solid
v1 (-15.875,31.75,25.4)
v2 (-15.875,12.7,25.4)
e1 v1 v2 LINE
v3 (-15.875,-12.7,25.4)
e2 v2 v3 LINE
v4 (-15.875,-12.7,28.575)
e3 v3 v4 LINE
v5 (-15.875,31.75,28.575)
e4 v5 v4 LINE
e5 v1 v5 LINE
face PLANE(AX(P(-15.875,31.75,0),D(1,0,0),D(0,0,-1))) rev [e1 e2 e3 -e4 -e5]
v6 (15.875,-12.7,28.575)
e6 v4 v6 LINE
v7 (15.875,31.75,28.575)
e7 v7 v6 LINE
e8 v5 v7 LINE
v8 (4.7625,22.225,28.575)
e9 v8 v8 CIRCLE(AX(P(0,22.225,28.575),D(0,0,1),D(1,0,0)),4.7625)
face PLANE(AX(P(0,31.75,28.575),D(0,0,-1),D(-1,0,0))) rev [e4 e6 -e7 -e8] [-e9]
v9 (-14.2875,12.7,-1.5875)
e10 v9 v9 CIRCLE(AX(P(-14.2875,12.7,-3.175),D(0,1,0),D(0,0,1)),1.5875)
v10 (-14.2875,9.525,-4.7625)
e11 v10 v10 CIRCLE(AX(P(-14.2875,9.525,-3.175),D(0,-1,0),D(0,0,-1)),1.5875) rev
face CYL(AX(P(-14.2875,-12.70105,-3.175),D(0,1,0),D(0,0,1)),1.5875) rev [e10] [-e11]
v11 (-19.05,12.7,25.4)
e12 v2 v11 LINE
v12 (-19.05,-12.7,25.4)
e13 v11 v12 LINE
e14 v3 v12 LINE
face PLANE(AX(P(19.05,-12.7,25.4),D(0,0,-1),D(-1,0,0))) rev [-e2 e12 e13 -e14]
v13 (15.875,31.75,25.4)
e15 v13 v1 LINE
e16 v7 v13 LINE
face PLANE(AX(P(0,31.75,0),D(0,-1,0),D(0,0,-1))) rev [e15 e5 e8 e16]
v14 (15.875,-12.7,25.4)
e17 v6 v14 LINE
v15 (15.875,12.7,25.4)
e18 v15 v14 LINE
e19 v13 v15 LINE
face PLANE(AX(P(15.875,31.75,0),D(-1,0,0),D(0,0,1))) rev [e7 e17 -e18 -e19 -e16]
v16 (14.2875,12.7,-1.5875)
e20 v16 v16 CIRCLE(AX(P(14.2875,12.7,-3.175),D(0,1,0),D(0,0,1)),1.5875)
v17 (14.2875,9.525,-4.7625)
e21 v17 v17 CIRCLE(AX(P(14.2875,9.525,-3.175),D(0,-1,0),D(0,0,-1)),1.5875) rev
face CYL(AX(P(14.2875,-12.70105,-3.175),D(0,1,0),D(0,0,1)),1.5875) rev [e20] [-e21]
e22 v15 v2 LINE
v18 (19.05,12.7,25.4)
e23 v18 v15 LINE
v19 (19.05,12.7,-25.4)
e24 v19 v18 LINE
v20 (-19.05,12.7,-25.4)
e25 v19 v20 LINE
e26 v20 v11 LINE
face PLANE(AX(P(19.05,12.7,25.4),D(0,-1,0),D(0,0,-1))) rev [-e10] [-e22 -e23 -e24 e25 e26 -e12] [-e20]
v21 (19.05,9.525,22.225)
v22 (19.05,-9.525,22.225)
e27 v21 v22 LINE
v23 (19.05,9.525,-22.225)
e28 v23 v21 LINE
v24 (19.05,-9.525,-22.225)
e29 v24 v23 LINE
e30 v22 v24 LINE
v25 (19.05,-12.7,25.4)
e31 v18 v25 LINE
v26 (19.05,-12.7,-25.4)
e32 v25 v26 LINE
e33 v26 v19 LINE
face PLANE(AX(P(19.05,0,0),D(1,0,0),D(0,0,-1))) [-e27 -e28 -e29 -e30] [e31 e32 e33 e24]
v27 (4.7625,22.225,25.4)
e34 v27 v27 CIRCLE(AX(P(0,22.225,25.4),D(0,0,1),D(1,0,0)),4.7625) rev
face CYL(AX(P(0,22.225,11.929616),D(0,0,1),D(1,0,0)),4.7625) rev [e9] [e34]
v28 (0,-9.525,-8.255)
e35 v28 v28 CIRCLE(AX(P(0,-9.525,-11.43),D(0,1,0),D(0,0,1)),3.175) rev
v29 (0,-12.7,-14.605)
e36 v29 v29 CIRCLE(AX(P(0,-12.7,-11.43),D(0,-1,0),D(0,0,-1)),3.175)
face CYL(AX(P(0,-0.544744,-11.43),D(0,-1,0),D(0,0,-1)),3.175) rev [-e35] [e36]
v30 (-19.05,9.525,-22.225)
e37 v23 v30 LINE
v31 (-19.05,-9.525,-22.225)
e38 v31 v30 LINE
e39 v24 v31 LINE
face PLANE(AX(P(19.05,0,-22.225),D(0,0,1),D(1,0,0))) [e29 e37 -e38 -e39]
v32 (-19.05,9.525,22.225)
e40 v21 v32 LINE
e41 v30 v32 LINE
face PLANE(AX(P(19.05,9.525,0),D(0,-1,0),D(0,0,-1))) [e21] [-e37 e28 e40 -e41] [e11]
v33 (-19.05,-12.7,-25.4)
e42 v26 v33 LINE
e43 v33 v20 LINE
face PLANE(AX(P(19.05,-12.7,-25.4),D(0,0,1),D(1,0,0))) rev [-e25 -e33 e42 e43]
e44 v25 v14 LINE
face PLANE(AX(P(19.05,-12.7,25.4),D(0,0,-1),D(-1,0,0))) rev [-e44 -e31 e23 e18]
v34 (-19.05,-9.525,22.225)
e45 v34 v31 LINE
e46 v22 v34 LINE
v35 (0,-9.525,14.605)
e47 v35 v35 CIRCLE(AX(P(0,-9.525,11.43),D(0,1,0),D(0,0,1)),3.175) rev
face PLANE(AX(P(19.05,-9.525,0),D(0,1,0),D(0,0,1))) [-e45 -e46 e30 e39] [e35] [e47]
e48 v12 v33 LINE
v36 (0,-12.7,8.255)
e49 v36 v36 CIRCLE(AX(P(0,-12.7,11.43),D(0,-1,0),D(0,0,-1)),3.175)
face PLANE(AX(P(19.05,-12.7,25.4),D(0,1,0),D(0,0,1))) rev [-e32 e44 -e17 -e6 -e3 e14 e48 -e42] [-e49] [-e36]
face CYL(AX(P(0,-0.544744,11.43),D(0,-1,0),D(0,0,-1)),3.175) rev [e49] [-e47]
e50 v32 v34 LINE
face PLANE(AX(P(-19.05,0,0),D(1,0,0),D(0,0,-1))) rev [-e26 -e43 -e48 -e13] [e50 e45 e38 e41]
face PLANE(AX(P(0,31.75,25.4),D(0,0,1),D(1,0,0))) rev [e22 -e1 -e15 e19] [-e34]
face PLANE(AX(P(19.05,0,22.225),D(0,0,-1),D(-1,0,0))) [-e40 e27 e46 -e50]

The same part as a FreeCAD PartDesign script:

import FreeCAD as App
import Part
import Sketcher
Q = App.Units.Quantity


def add_polygon(sketch, points):
    """Adds a closed chain of lines whose ends are joined by coincident constraints."""
    first, n = sketch.GeometryCount, len(points)
    for a, b in zip(points, points[1:] + points[:1]):
        sketch.addGeometry(Part.LineSegment(App.Vector(*a, 0), App.Vector(*b, 0)), False)
    for i in range(n):
        sketch.addConstraint(Sketcher.Constraint("Coincident", first + i, 2, first + (i + 1) % n, 1))

doc = App.newDocument("Part")
params = doc.addObject("Spreadsheet::Sheet", "Params")
for row, (alias, value) in enumerate([
    ("sketch1_width", "1 in"),
    ("sketch1_height", "2 in"),
    ("sketch1_width2", "0.75 in"),
    ("sketch1_height2", "1.75 in"),
    ("pad1_length", "1.5 in"),
    ("sketch2_width", "1.25 in"),
    ("sketch2_height", "0.125 in"),
    ("pad2_length", "1.75 in"),
    ("sketch3_diameter", "0.375 in"),
    ("sketch4_diameter", "0.125 in"),
    ("sketch5_diameter", "0.125 in"),
    ("sketch6_diameter", "0.25 in"),
    ("pocket4_length", "0.125 in"),
], start=1):
    params.set(f"A{row}", alias)
    params.set(f"B{row}", "=" + value)
    params.setAlias(f"B{row}", alias)

body = doc.addObject("PartDesign::Body", "Body")

# Sketch on YZ plane
sketch1 = body.newObject("Sketcher::SketchObject", "Sketch")
sketch1.AttachmentSupport = (doc.getObject("YZ_Plane"), [""])
sketch1.MapMode = "FlatFace"
add_polygon(sketch1, [(13, 25), (-13, 25), (-13, -25), (13, -25)])  # lines 0-3
add_polygon(sketch1, [(-10, -22), (-10, 22), (10, 22), (10, -22)])  # lines 4-7
sketch1.addConstraint([
    Sketcher.Constraint("Horizontal", 0),
    Sketcher.Constraint("Vertical", 1),
    Sketcher.Constraint("Horizontal", 2),
    Sketcher.Constraint("Vertical", 3),
    Sketcher.Constraint("Vertical", 4),
    Sketcher.Constraint("Horizontal", 5),
    Sketcher.Constraint("Vertical", 6),
    Sketcher.Constraint("Horizontal", 7),
    Sketcher.Constraint("Symmetric", 0, 2, 2, 2, -1, 1),
    Sketcher.Constraint("Symmetric", 4, 2, 6, 2, -1, 1),
    Sketcher.Constraint("DistanceX", 0, 2, 0, 1, Q("1 in")),
    Sketcher.Constraint("DistanceY", 1, 2, 1, 1, Q("2 in")),
    Sketcher.Constraint("DistanceX", 5, 1, 5, 2, Q("0.75 in")),
    Sketcher.Constraint("DistanceY", 4, 1, 4, 2, Q("1.75 in")),
])
sketch1.setExpression("Constraints[18]", "Params.sketch1_width")
sketch1.setExpression("Constraints[19]", "Params.sketch1_height")
sketch1.setExpression("Constraints[20]", "Params.sketch1_width2")
sketch1.setExpression("Constraints[21]", "Params.sketch1_height2")
pad1 = body.newObject("PartDesign::Pad", "Pad")
pad1.Profile = sketch1
pad1.setExpression("Length", "Params.pad1_length")
pad1.Midplane = True

# Sketch on XZ plane
sketch2 = body.newObject("Sketcher::SketchObject", "Sketch001")
sketch2.AttachmentSupport = (doc.getObject("XZ_Plane"), [""])
sketch2.MapMode = "FlatFace"
sketch2.AttachmentOffset = App.Placement(App.Vector(0, 0, 0.5 * 25.4), App.Rotation())
add_polygon(sketch2, [(-15.9, 28.6), (-15.9, 25.4), (15.9, 25.4), (15.9, 28.6)])  # lines 0-3
sketch2.addConstraint([
    Sketcher.Constraint("Vertical", 0),
    Sketcher.Constraint("Horizontal", 1),
    Sketcher.Constraint("Vertical", 2),
    Sketcher.Constraint("Horizontal", 3),
    Sketcher.Constraint("DistanceY", -1, 1, 0, 2, Q("1 in")),
    Sketcher.Constraint("DistanceX", 1, 1, 1, 2, Q("1.25 in")),
    Sketcher.Constraint("DistanceY", 0, 2, 0, 1, Q("0.125 in")),
    Sketcher.Constraint("DistanceX", 0, 2, -1, 1, Q("0.625 in")),
])
sketch2.setExpression("Constraints[9]", "Params.sketch2_width")
sketch2.setExpression("Constraints[10]", "Params.sketch2_height")
pad2 = body.newObject("PartDesign::Pad", "Pad001")
pad2.Profile = sketch2
pad2.setExpression("Length", "Params.pad2_length")
pad2.Reversed = True

# Sketch on XY plane
sketch3 = body.newObject("Sketcher::SketchObject", "Sketch002")
sketch3.AttachmentSupport = (doc.getObject("XY_Plane"), [""])
sketch3.MapMode = "FlatFace"
sketch3.AttachmentOffset = App.Placement(App.Vector(0, 0, 1.125 * 25.4), App.Rotation())
sketch3.addGeometry(Part.Circle(App.Vector(0, 22.2, 0), App.Vector(0, 0, 1), 4.8), False)
sketch3.addConstraint([
    Sketcher.Constraint("PointOnObject", 0, 3, -2),
    Sketcher.Constraint("Diameter", 0, Q("0.375 in")),
    Sketcher.Constraint("DistanceY", -1, 1, 0, 3, Q("0.875 in")),
])
sketch3.setExpression("Constraints[1]", "Params.sketch3_diameter")
pocket1 = body.newObject("PartDesign::Pocket", "Pocket")
pocket1.Profile = sketch3
pocket1.Type = "UpToFirst"

# Sketch on XZ plane
sketch4 = body.newObject("Sketcher::SketchObject", "Sketch003")
sketch4.AttachmentSupport = (doc.getObject("XZ_Plane"), [""])
sketch4.MapMode = "FlatFace"
sketch4.AttachmentOffset = App.Placement(App.Vector(0, 0, -0.5 * 25.4), App.Rotation())
sketch4.addGeometry(Part.Circle(App.Vector(14.3, -3.2, 0), App.Vector(0, 0, 1), 1.6), False)
sketch4.addConstraint([
    Sketcher.Constraint("Diameter", 0, Q("0.125 in")),
    Sketcher.Constraint("DistanceX", -1, 1, 0, 3, Q("0.5625 in")),
    Sketcher.Constraint("DistanceY", 0, 3, -1, 1, Q("0.125 in")),
])
sketch4.setExpression("Constraints[0]", "Params.sketch4_diameter")
pocket2 = body.newObject("PartDesign::Pocket", "Pocket001")
pocket2.Profile = sketch4
pocket2.Type = "UpToFirst"
pocket2.Reversed = True

# Sketch on XZ plane
sketch5 = body.newObject("Sketcher::SketchObject", "Sketch004")
sketch5.AttachmentSupport = (doc.getObject("XZ_Plane"), [""])
sketch5.MapMode = "FlatFace"
sketch5.AttachmentOffset = App.Placement(App.Vector(0, 0, -0.5 * 25.4), App.Rotation())
sketch5.addGeometry(Part.Circle(App.Vector(-14.3, -3.2, 0), App.Vector(0, 0, 1), 1.6), False)
sketch5.addConstraint([
    Sketcher.Constraint("Diameter", 0, Q("0.125 in")),
    Sketcher.Constraint("DistanceX", 0, 3, -1, 1, Q("0.5625 in")),
    Sketcher.Constraint("DistanceY", 0, 3, -1, 1, Q("0.125 in")),
])
sketch5.setExpression("Constraints[0]", "Params.sketch5_diameter")
pocket3 = body.newObject("PartDesign::Pocket", "Pocket002")
pocket3.Profile = sketch5
pocket3.Type = "UpToFirst"
pocket3.Reversed = True

# Sketch on XZ plane
sketch6 = body.newObject("Sketcher::SketchObject", "Sketch005")
sketch6.AttachmentSupport = (doc.getObject("XZ_Plane"), [""])
sketch6.MapMode = "FlatFace"
sketch6.AttachmentOffset = App.Placement(App.Vector(0, 0, 0.5 * 25.4), App.Rotation())
sketch6.addGeometry([
    Part.Circle(App.Vector(0, -11.4, 0), App.Vector(0, 0, 1), 3.2),
    Part.Circle(App.Vector(0, 11.4, 0), App.Vector(0, 0, 1), 3.2),
], False)
sketch6.addConstraint([
    Sketcher.Constraint("Equal", 0, 1),
    Sketcher.Constraint("Symmetric", 0, 3, 1, 3, -1, 1),
    Sketcher.Constraint("PointOnObject", 0, 3, -2),
    Sketcher.Constraint("Diameter", 0, Q("0.25 in")),
    Sketcher.Constraint("DistanceY", 0, 3, 1, 3, Q("0.9 in")),
])
sketch6.setExpression("Constraints[3]", "Params.sketch6_diameter")
pocket4 = body.newObject("PartDesign::Pocket", "Pocket003")
pocket4.Profile = sketch6
pocket4.setExpression("Length", "Params.pocket4_length")

doc.recompute()
